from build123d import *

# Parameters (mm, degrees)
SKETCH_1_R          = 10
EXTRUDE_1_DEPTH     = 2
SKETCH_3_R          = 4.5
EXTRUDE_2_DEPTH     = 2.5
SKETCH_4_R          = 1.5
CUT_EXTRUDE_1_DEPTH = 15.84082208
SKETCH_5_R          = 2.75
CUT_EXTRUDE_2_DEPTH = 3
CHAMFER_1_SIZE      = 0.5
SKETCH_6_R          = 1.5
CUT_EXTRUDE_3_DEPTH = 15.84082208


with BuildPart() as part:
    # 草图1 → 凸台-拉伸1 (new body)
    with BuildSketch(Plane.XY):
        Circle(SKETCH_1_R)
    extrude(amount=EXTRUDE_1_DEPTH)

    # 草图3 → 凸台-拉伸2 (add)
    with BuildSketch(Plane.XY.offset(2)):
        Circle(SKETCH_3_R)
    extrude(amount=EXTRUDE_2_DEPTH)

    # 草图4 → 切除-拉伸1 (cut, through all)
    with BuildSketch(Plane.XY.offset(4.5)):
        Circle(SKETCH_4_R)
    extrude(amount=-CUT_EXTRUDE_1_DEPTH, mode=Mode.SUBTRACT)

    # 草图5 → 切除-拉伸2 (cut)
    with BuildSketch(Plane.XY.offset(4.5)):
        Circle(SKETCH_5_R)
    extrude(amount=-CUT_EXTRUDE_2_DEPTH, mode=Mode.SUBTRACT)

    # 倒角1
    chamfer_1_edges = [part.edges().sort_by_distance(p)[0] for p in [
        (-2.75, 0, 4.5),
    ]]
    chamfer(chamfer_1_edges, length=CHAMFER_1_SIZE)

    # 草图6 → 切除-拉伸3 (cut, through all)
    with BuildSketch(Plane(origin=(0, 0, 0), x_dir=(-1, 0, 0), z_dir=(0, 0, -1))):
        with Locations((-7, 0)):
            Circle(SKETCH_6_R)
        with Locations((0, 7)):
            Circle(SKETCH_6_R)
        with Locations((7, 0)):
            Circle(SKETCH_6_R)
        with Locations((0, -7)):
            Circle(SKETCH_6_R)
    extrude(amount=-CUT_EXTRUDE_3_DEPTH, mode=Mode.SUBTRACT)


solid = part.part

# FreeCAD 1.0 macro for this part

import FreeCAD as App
import Part
import Sketcher
from FreeCAD import Vector
Q = App.Units.Quantity


def edges_at(feature, points):
    """Names of the edges that pass closest to the given points."""
    edges = feature.Shape.Edges
    near = lambda p: min(range(len(edges)), key=lambda i: edges[i].distToShape(Part.Vertex(*p))[0])
    return sorted({f"Edge{near(p) + 1}" for p in points})

doc = App.newDocument("Part")
body = doc.addObject("PartDesign::Body", "Body")

sketch1 = body.newObject("Sketcher::SketchObject", "Sketch")
sketch1.AttachmentSupport = (doc.getObject("XY_Plane"), [""])
sketch1.MapMode = "FlatFace"
sketch1.addGeometry(Part.Circle(Vector(0, 0, 0), Vector(0, 0, 1), 10), False)
sketch1.addConstraint([
    Sketcher.Constraint("Coincident", 0, 3, -1, 1),
    Sketcher.Constraint("Diameter", 0, Q("20 mm")),
])
pad1 = body.newObject("PartDesign::Pad", "Pad")
pad1.Profile = sketch1
pad1.Length = 2

sketch2 = body.newObject("Sketcher::SketchObject", "Sketch001")
sketch2.AttachmentSupport = (doc.getObject("XY_Plane"), [""])
sketch2.MapMode = "FlatFace"
sketch2.AttachmentOffset = App.Placement(Vector(0, 0, 2), App.Rotation())
sketch2.addGeometry(Part.Circle(Vector(0, 0, 0), Vector(0, 0, 1), 4.5), False)
sketch2.addConstraint([
    Sketcher.Constraint("Coincident", 0, 3, -1, 1),
    Sketcher.Constraint("Diameter", 0, Q("9 mm")),
])
pad2 = body.newObject("PartDesign::Pad", "Pad001")
pad2.Profile = sketch2
pad2.Length = 2.5

sketch3 = body.newObject("Sketcher::SketchObject", "Sketch002")
sketch3.AttachmentSupport = (doc.getObject("XY_Plane"), [""])
sketch3.MapMode = "FlatFace"
sketch3.AttachmentOffset = App.Placement(Vector(0, 0, 4.5), App.Rotation())
sketch3.addGeometry(Part.Circle(Vector(0, 0, 0), Vector(0, 0, 1), 1.5), False)
sketch3.addConstraint([
    Sketcher.Constraint("Coincident", 0, 3, -1, 1),
    Sketcher.Constraint("Diameter", 0, Q("3 mm")),
])
pocket1 = body.newObject("PartDesign::Pocket", "Pocket")
pocket1.Profile = sketch3
pocket1.Type = "ThroughAll"

sketch4 = body.newObject("Sketcher::SketchObject", "Sketch003")
sketch4.AttachmentSupport = (doc.getObject("XY_Plane"), [""])
sketch4.MapMode = "FlatFace"
sketch4.AttachmentOffset = App.Placement(Vector(0, 0, 4.5), App.Rotation())
sketch4.addGeometry(Part.Circle(Vector(0, 0, 0), Vector(0, 0, 1), 2.8), False)
sketch4.addConstraint([
    Sketcher.Constraint("Coincident", 0, 3, -1, 1),
    Sketcher.Constraint("Diameter", 0, Q("5.5 mm")),
])
pocket2 = body.newObject("PartDesign::Pocket", "Pocket001")
pocket2.Profile = sketch4
pocket2.Length = 3
doc.recompute()

chamfer = body.newObject("PartDesign::Chamfer", "Chamfer")
chamfer.Base = (pocket2, edges_at(pocket2, [(-2.75, 0, 4.5)]))
chamfer.Size = 0.5

sketch5 = body.newObject("Sketcher::SketchObject", "Sketch004")
sketch5.AttachmentSupport = (doc.getObject("XY_Plane"), [""])
sketch5.MapMode = "FlatFace"
sketch5.addGeometry([
    Part.Circle(Vector(7, 0, 0), Vector(0, 0, 1), 1.5),
    Part.Circle(Vector(0, 7, 0), Vector(0, 0, 1), 1.5),
    Part.Circle(Vector(-7, 0, 0), Vector(0, 0, 1), 1.5),
    Part.Circle(Vector(0, -7, 0), Vector(0, 0, 1), 1.5),
], False)
sketch5.addConstraint([
    Sketcher.Constraint("Equal", 0, 1),
    Sketcher.Constraint("Equal", 1, 2),
    Sketcher.Constraint("Equal", 2, 3),
    Sketcher.Constraint("Symmetric", 0, 3, 2, 3, -1, 1),
    Sketcher.Constraint("Symmetric", 1, 3, 3, 3, -1, 1),
    Sketcher.Constraint("PointOnObject", 0, 3, -1),
    Sketcher.Constraint("PointOnObject", 1, 3, -2),
    Sketcher.Constraint("Diameter", 0, Q("3 mm")),
    Sketcher.Constraint("DistanceX", -1, 1, 0, 3, Q("7 mm")),
    Sketcher.Constraint("DistanceY", -1, 1, 1, 3, Q("7 mm")),
])
pocket3 = body.newObject("PartDesign::Pocket", "Pocket002")
pocket3.Profile = sketch5
pocket3.Type = "ThroughAll"
pocket3.Reversed = True

doc.recompute()
